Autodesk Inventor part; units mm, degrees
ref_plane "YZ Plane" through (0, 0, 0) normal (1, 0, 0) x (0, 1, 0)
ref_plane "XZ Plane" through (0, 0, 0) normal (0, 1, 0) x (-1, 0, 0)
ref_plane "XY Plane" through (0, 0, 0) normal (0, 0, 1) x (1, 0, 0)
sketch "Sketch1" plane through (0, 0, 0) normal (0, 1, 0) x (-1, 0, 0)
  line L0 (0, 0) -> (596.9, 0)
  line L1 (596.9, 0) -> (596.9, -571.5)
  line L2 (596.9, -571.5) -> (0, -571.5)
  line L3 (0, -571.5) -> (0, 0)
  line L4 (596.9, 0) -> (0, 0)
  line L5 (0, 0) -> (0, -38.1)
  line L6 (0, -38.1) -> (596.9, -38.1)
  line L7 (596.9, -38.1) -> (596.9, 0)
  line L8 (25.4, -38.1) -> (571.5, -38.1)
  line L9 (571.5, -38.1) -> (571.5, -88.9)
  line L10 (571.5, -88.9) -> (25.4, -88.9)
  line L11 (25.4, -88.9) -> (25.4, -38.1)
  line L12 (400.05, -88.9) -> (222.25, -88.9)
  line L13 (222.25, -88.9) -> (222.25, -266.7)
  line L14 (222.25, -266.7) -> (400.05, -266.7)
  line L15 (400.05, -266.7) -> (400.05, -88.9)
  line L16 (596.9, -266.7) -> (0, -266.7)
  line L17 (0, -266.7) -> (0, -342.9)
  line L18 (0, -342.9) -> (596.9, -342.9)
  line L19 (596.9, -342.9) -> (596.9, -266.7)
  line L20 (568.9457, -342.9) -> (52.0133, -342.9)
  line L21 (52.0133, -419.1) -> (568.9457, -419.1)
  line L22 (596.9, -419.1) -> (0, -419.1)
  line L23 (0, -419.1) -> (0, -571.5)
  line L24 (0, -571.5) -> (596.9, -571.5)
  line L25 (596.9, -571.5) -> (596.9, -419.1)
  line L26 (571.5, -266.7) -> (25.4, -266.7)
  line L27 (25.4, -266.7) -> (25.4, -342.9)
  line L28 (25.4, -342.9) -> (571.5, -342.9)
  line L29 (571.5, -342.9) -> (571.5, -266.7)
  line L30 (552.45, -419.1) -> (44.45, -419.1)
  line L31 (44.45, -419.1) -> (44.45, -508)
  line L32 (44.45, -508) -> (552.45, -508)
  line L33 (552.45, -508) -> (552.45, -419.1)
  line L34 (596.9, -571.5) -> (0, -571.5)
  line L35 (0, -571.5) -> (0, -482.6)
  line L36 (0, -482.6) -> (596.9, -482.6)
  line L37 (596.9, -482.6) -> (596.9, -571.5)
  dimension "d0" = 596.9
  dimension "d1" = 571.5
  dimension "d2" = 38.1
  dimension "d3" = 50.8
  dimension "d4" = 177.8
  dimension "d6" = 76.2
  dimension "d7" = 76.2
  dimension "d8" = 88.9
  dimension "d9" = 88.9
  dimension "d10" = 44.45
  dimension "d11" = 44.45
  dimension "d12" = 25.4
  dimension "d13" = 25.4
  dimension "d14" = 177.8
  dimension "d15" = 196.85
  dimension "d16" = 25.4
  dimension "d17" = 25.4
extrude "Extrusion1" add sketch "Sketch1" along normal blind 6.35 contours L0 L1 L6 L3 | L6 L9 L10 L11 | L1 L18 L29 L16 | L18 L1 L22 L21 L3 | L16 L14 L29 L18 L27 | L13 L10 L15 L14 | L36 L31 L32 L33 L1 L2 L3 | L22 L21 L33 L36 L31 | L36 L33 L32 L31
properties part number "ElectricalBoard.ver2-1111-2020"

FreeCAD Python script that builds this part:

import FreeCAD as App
import Part
import Sketcher
Q = App.Units.Quantity


def add_polygon(sketch, points):
    """Adds a closed chain of lines whose ends are joined by coincident constraints."""
    first, n = sketch.GeometryCount, len(points)
    for a, b in zip(points, points[1:] + points[:1]):
        sketch.addGeometry(Part.LineSegment(App.Vector(*a, 0), App.Vector(*b, 0)), False)
    for i in range(n):
        sketch.addConstraint(Sketcher.Constraint("Coincident", first + i, 2, first + (i + 1) % n, 1))

doc = App.newDocument("Part")
body = doc.addObject("PartDesign::Body", "Body")

# Sketch on XZ plane
sketch1 = body.newObject("Sketcher::SketchObject", "Sketch")
sketch1.AttachmentSupport = (doc.getObject("XZ_Plane"), [""])
sketch1.MapMode = "FlatFace"
add_polygon(sketch1, [(-596.9, 0), (0, 0), (0, -38.1), (-25.4, -38.1), (-25.4, -88.9), (-222.25, -88.9), (-222.25, -266.7), (-25.4, -266.7), (-25.4, -342.9), (0, -342.9), (0, -419.1), (-44.45, -419.1), (-44.45, -482.6), (0, -482.6), (0, -571.5), (-596.9, -571.5), (-596.9, -482.6), (-552.45, -482.6), (-552.45, -419.1), (-596.9, -419.1), (-596.9, -266.7), (-400.05, -266.7), (-400.05, -88.9), (-571.5, -88.9), (-571.5, -38.1), (-596.9, -38.1)])  # lines 0-25
sketch1.addConstraint([
    Sketcher.Constraint("Horizontal", 0),
    Sketcher.Constraint("Vertical", 1),
    Sketcher.Constraint("Horizontal", 2),
    Sketcher.Constraint("Vertical", 3),
    Sketcher.Constraint("Horizontal", 4),
    Sketcher.Constraint("Vertical", 5),
    Sketcher.Constraint("Horizontal", 6),
    Sketcher.Constraint("Vertical", 7),
    Sketcher.Constraint("Horizontal", 8),
    Sketcher.Constraint("Vertical", 9),
    Sketcher.Constraint("Horizontal", 10),
    Sketcher.Constraint("Vertical", 11),
    Sketcher.Constraint("Horizontal", 12),
    Sketcher.Constraint("Vertical", 13),
    Sketcher.Constraint("Horizontal", 14),
    Sketcher.Constraint("Vertical", 15),
    Sketcher.Constraint("Horizontal", 16),
    Sketcher.Constraint("Vertical", 17),
    Sketcher.Constraint("Horizontal", 18),
    Sketcher.Constraint("Vertical", 19),
    Sketcher.Constraint("Horizontal", 20),
    Sketcher.Constraint("Vertical", 21),
    Sketcher.Constraint("Horizontal", 22),
    Sketcher.Constraint("Vertical", 23),
    Sketcher.Constraint("Horizontal", 24),
    Sketcher.Constraint("Vertical", 25),
    Sketcher.Constraint("Coincident", 0, 2, -1, 1),
    Sketcher.Constraint("PointOnObject", 8, 2, -2),
    Sketcher.Constraint("PointOnObject", 12, 2, -2),
    Sketcher.Constraint("Horizontal", 12, 2, 15, 2),
    Sketcher.Constraint("Horizontal", 10, 2, 17, 2),
    Sketcher.Constraint("Horizontal", 6, 2, 19, 2),
    Sketcher.Constraint("Horizontal", 4, 2, 21, 2),
    Sketcher.Constraint("Horizontal", 2, 2, 23, 2),
    Sketcher.Constraint("Vertical", 3, 2, 6, 2),
    Sketcher.Constraint("Vertical", 15, 2, 18, 2),
    Sketcher.Constraint("Vertical", 19, 2, 24, 2),
    Sketcher.Constraint("Equal", 12, 16),
    Sketcher.Constraint("Equal", 6, 20),
    Sketcher.Constraint("Equal", 8, 24),
    Sketcher.Constraint("Equal", 7, 9),
    Sketcher.Constraint("DistanceX", 2, 2, 2, 1, Q("1 in")),
    Sketcher.Constraint("DistanceY", 3, 2, 3, 1, Q("2 in")),
    Sketcher.Constraint("DistanceY", 5, 2, 5, 1, Q("7 in")),
    Sketcher.Constraint("DistanceY", 7, 2, 7, 1, Q("3 in")),
    Sketcher.Constraint("DistanceX", 0, 1, 0, 2, Q("23.5 in")),
    Sketcher.Constraint("DistanceY", 1, 2, 1, 1, Q("1.5 in")),
    Sketcher.Constraint("DistanceY", 13, 2, 13, 1, Q("3.5 in")),
    Sketcher.Constraint("DistanceX", 5, 2, 10, 2, Q("7 in")),
    Sketcher.Constraint("DistanceX", 20, 2, 5, 2, Q("7 in")),
    Sketcher.Constraint("DistanceY", 13, 2, -1, 1, Q("22.5 in")),
])
pad1 = body.newObject("PartDesign::Pad", "Pad")
pad1.Profile = sketch1
pad1.Length = Q("0.25 in")
pad1.Reversed = True

doc.recompute()
